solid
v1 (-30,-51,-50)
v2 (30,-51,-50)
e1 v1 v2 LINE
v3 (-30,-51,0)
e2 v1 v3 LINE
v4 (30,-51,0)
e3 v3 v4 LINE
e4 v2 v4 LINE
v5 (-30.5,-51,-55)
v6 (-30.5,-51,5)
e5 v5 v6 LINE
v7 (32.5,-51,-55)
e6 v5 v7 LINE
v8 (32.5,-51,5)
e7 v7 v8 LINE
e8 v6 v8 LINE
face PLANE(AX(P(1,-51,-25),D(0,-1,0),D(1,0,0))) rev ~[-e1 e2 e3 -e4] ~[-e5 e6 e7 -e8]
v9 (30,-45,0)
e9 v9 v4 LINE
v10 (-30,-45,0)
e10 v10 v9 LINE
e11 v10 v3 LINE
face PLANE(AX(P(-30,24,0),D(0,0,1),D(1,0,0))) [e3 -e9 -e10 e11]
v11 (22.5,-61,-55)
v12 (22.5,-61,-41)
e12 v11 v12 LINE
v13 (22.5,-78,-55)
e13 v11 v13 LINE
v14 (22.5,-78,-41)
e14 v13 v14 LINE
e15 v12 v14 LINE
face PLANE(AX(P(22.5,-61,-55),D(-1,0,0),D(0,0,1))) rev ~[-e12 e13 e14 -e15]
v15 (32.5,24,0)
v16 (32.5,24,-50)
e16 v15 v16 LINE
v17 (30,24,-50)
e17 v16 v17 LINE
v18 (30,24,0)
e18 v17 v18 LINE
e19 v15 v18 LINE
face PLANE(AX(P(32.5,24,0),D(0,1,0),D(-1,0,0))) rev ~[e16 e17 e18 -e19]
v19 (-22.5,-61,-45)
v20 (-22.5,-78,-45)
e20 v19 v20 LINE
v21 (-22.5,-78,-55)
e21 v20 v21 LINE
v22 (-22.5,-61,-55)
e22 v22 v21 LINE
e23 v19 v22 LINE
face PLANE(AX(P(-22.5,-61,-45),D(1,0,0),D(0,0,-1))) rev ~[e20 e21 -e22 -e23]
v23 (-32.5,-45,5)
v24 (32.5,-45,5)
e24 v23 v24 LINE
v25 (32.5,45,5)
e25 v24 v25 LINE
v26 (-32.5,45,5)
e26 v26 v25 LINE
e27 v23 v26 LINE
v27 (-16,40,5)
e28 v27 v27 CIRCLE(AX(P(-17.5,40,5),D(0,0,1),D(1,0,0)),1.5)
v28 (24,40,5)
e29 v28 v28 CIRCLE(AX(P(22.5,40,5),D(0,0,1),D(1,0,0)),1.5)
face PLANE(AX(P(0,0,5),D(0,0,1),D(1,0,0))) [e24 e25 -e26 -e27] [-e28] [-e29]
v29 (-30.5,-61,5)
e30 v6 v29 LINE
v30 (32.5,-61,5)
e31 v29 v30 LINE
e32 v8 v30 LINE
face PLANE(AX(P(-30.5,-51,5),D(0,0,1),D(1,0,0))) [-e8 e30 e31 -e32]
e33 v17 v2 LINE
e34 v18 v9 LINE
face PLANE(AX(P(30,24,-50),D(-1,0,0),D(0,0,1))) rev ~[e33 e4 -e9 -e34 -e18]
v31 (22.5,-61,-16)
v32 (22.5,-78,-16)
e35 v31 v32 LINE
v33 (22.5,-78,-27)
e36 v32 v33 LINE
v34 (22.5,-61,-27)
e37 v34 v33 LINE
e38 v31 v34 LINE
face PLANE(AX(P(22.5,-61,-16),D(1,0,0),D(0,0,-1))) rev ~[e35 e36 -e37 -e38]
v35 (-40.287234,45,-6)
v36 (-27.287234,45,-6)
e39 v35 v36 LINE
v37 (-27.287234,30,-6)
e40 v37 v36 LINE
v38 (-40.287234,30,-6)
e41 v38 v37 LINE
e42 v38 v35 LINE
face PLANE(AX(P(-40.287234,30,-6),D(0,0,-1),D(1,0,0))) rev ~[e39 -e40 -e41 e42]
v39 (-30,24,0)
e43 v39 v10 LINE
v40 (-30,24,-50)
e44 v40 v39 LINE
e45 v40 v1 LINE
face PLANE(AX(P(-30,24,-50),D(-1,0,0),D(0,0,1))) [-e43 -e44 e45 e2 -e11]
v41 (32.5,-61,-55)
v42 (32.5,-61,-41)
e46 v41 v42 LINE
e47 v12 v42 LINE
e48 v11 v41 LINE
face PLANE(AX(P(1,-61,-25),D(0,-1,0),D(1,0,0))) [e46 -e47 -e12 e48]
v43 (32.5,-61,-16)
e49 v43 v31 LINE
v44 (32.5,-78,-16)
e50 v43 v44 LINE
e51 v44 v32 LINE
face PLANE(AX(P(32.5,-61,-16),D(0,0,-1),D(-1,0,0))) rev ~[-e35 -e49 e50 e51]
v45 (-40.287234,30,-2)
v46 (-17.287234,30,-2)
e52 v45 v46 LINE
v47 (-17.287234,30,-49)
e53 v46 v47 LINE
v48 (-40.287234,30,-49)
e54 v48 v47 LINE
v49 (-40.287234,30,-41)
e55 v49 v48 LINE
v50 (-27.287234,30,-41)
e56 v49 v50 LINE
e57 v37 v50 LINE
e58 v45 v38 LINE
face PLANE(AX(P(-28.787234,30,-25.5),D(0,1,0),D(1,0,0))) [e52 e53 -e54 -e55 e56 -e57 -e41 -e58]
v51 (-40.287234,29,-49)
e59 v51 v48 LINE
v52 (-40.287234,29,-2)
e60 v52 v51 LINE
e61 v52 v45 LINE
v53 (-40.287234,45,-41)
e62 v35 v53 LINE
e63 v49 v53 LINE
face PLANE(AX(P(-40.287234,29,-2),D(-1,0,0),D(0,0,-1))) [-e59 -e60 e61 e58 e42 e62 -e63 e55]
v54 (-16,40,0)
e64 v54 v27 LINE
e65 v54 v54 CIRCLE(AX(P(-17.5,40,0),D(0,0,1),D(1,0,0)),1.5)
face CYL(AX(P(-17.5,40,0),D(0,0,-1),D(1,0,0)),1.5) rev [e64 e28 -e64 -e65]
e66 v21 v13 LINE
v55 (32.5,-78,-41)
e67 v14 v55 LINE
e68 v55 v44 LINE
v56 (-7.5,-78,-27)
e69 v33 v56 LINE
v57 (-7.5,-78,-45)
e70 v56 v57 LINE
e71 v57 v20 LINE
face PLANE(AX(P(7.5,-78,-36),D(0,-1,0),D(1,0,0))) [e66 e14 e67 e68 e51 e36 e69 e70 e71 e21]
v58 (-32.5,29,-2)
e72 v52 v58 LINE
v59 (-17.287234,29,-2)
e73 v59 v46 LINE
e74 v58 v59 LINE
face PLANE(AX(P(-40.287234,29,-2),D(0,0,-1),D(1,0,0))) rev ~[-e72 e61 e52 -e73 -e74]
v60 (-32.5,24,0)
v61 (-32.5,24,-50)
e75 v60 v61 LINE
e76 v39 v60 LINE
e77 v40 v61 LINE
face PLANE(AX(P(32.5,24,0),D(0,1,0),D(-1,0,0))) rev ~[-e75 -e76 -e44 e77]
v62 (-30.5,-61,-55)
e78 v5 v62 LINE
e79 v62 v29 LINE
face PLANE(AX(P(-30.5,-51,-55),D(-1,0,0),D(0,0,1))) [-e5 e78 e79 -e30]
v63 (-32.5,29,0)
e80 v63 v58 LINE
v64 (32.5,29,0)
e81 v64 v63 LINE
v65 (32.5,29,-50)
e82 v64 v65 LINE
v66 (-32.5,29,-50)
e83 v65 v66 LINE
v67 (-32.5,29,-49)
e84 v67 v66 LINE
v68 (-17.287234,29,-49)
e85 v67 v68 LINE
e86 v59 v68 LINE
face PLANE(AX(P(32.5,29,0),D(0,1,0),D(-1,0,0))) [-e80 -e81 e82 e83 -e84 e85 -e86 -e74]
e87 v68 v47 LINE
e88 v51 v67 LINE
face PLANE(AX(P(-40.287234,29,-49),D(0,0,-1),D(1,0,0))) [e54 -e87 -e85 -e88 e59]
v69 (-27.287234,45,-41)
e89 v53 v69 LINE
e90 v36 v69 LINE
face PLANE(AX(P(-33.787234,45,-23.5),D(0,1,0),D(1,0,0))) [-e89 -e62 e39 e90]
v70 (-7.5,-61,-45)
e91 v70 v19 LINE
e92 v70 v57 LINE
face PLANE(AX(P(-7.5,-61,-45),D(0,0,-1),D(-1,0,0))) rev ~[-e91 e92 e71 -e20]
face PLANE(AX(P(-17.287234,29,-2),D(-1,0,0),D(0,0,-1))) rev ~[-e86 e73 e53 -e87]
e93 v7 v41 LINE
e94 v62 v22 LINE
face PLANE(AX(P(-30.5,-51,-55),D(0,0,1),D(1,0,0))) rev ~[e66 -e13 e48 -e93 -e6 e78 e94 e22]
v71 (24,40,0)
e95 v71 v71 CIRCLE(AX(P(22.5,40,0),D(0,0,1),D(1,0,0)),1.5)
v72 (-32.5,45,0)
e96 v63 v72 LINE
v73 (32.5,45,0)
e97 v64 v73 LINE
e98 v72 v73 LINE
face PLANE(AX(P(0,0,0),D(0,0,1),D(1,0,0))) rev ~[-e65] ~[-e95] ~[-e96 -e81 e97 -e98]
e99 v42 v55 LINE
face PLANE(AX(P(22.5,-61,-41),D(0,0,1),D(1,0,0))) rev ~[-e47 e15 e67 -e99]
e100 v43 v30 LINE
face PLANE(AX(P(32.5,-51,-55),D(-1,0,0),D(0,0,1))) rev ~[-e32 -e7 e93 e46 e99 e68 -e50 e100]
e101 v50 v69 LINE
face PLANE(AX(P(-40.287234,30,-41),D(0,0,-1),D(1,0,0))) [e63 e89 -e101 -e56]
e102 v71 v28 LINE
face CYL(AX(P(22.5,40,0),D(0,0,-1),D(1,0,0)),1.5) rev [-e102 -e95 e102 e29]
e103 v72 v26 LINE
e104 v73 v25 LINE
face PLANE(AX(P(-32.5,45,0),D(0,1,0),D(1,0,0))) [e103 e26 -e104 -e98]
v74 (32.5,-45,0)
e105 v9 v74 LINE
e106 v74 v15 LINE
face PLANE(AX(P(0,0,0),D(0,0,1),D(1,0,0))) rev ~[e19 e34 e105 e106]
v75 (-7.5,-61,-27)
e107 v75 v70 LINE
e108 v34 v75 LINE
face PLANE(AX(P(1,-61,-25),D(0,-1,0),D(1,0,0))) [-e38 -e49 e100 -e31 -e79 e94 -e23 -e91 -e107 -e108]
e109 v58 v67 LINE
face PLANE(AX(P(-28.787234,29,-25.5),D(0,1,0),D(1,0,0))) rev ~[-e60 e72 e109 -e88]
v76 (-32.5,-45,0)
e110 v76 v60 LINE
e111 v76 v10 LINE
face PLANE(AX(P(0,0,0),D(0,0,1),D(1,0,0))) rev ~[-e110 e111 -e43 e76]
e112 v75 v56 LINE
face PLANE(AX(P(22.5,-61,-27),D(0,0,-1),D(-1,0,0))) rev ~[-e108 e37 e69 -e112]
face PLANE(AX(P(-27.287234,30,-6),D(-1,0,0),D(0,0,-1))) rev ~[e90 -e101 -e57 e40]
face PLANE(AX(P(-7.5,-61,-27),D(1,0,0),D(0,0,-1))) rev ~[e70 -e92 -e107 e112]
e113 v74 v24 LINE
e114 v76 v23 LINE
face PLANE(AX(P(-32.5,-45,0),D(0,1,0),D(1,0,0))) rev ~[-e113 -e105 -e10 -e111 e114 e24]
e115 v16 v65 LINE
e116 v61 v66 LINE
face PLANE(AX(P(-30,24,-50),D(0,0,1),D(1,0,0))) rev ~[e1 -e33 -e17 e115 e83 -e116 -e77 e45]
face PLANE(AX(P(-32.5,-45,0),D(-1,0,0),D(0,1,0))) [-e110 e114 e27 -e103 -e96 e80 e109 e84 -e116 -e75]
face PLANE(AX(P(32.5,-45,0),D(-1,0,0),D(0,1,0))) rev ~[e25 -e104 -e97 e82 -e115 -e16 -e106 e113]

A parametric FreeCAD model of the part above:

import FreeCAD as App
import Part
import Sketcher
from FreeCAD import Vector
Q = App.Units.Quantity

doc = App.newDocument("Part")
body = doc.addObject("PartDesign::Body", "Body")

# Sketch on XY plane
sketch1 = body.newObject("Sketcher::SketchObject", "Sketch")
sketch1.AttachmentSupport = (doc.getObject("XY_Plane"), [""])
sketch1.MapMode = "FlatFace"
sketch1.addGeometry(Part.LineSegment(Vector(-32.5, 45, 0), Vector(-32.5, -45, 0)), False)
sketch1.addGeometry(Part.LineSegment(Vector(-32.5, -45, 0), Vector(32.5, -45, 0)), False)
sketch1.addGeometry(Part.LineSegment(Vector(32.5, -45, 0), Vector(32.5, 45, 0)), False)
sketch1.addGeometry(Part.LineSegment(Vector(32.5, 45, 0), Vector(-32.5, 45, 0)), False)
sketch1.addGeometry(Part.Circle(Vector(-17.5, 40, 0), Vector(0, 0, 1), 1.5), False)
sketch1.addGeometry(Part.Circle(Vector(22.5, 40, 0), Vector(0, 0, 1), 1.5), False)
sketch1.addConstraint(Sketcher.Constraint("Coincident", 0, 2, 1, 1))
sketch1.addConstraint(Sketcher.Constraint("Coincident", 1, 2, 2, 1))
sketch1.addConstraint(Sketcher.Constraint("Coincident", 2, 2, 3, 1))
sketch1.addConstraint(Sketcher.Constraint("Coincident", 3, 2, 0, 1))
sketch1.addConstraint(Sketcher.Constraint("Vertical", 0))
sketch1.addConstraint(Sketcher.Constraint("Horizontal", 1))
sketch1.addConstraint(Sketcher.Constraint("Vertical", 2))
sketch1.addConstraint(Sketcher.Constraint("Horizontal", 3))
sketch1.addConstraint(Sketcher.Constraint("Equal", 4, 5))
sketch1.addConstraint(Sketcher.Constraint("Symmetric", 0, 2, 2, 2, -1, 1))
sketch1.addConstraint(Sketcher.Constraint("Horizontal", 4, 3, 5, 3))
sketch1.addConstraint(Sketcher.Constraint("Diameter", 4, Q("3 mm")))
sketch1.addConstraint(Sketcher.Constraint("DistanceX", 1, 1, 1, 2, Q("65 mm")))
sketch1.addConstraint(Sketcher.Constraint("DistanceY", 0, 2, 0, 1, Q("90 mm")))
sketch1.addConstraint(Sketcher.Constraint("DistanceY", -1, 1, 4, 3, Q("40 mm")))
sketch1.addConstraint(Sketcher.Constraint("DistanceX", 4, 3, 5, 3, Q("40 mm")))
sketch1.addConstraint(Sketcher.Constraint("DistanceX", 0, 2, 4, 3, Q("15 mm")))
pad1 = body.newObject("PartDesign::Pad", "Pad")
pad1.Profile = sketch1
pad1.Length = 5

# Sketch on XY plane
sketch2 = body.newObject("Sketcher::SketchObject", "Sketch001")
sketch2.AttachmentSupport = (doc.getObject("XY_Plane"), [""])
sketch2.MapMode = "FlatFace"
sketch2.addGeometry(Part.LineSegment(Vector(32, 29, 0), Vector(32, 24, 0)), False)
sketch2.addGeometry(Part.LineSegment(Vector(32, 24, 0), Vector(-32, 24, 0)), False)
sketch2.addGeometry(Part.LineSegment(Vector(-32, 24, 0), Vector(-32, 29, 0)), False)
sketch2.addGeometry(Part.LineSegment(Vector(-32, 29, 0), Vector(32, 29, 0)), False)
sketch2.addConstraint(Sketcher.Constraint("Coincident", 0, 2, 1, 1))
sketch2.addConstraint(Sketcher.Constraint("Coincident", 1, 2, 2, 1))
sketch2.addConstraint(Sketcher.Constraint("Coincident", 2, 2, 3, 1))
sketch2.addConstraint(Sketcher.Constraint("Coincident", 3, 2, 0, 1))
sketch2.addConstraint(Sketcher.Constraint("Vertical", 0))
sketch2.addConstraint(Sketcher.Constraint("Horizontal", 1))
sketch2.addConstraint(Sketcher.Constraint("Vertical", 2))
sketch2.addConstraint(Sketcher.Constraint("Horizontal", 3))
sketch2.addConstraint(Sketcher.Constraint("DistanceX", 1, 2, 1, 1, Q("65 mm")))
sketch2.addConstraint(Sketcher.Constraint("DistanceY", 0, 2, 0, 1, Q("5 mm")))
sketch2.addConstraint(Sketcher.Constraint("DistanceY", -1, 1, 0, 2, Q("24 mm")))
sketch2.addConstraint(Sketcher.Constraint("DistanceX", -1, 1, 0, 2, Q("32.5 mm")))
pad2 = body.newObject("PartDesign::Pad", "Pad001")
pad2.Profile = sketch2
pad2.Length = 50
pad2.Reversed = True

# Sketch on XZ plane
sketch3 = body.newObject("Sketcher::SketchObject", "Sketch002")
sketch3.AttachmentSupport = (doc.getObject("XZ_Plane"), [""])
sketch3.MapMode = "FlatFace"
sketch3.AttachmentOffset = App.Placement(Vector(0, 0, -29), App.Rotation())
sketch3.addGeometry(Part.LineSegment(Vector(-40, -49, 0), Vector(-40, -2, 0)), False)
sketch3.addGeometry(Part.LineSegment(Vector(-40, -2, 0), Vector(-17, -2, 0)), False)
sketch3.addGeometry(Part.LineSegment(Vector(-17, -2, 0), Vector(-17, -49, 0)), False)
sketch3.addGeometry(Part.LineSegment(Vector(-17, -49, 0), Vector(-40, -49, 0)), False)
sketch3.addConstraint(Sketcher.Constraint("Coincident", 0, 2, 1, 1))
sketch3.addConstraint(Sketcher.Constraint("Coincident", 1, 2, 2, 1))
sketch3.addConstraint(Sketcher.Constraint("Coincident", 2, 2, 3, 1))
sketch3.addConstraint(Sketcher.Constraint("Coincident", 3, 2, 0, 1))
sketch3.addConstraint(Sketcher.Constraint("Vertical", 0))
sketch3.addConstraint(Sketcher.Constraint("Horizontal", 1))
sketch3.addConstraint(Sketcher.Constraint("Vertical", 2))
sketch3.addConstraint(Sketcher.Constraint("Horizontal", 3))
sketch3.addConstraint(Sketcher.Constraint("DistanceX", 1, 1, 1, 2, Q("23 mm")))
sketch3.addConstraint(Sketcher.Constraint("DistanceY", 0, 1, 0, 2, Q("47 mm")))
sketch3.addConstraint(Sketcher.Constraint("DistanceY", 0, 2, -1, 1, Q("2 mm")))
sketch3.addConstraint(Sketcher.Constraint("DistanceX", 0, 2, -1, 1, Q("40.287234 mm")))
pad3 = body.newObject("PartDesign::Pad", "Pad002")
pad3.Profile = sketch3
pad3.Length = 1
pad3.Reversed = True

# Sketch on XZ plane
sketch4 = body.newObject("Sketcher::SketchObject", "Sketch003")
sketch4.AttachmentSupport = (doc.getObject("XZ_Plane"), [""])
sketch4.MapMode = "FlatFace"
sketch4.AttachmentOffset = App.Placement(Vector(0, 0, -30), App.Rotation())
sketch4.addGeometry(Part.LineSegment(Vector(-40, -41, 0), Vector(-40, -6, 0)), False)
sketch4.addGeometry(Part.LineSegment(Vector(-40, -6, 0), Vector(-27, -6, 0)), False)
sketch4.addGeometry(Part.LineSegment(Vector(-27, -6, 0), Vector(-27, -41, 0)), False)
sketch4.addGeometry(Part.LineSegment(Vector(-27, -41, 0), Vector(-40, -41, 0)), False)
sketch4.addConstraint(Sketcher.Constraint("Coincident", 0, 2, 1, 1))
sketch4.addConstraint(Sketcher.Constraint("Coincident", 1, 2, 2, 1))
sketch4.addConstraint(Sketcher.Constraint("Coincident", 2, 2, 3, 1))
sketch4.addConstraint(Sketcher.Constraint("Coincident", 3, 2, 0, 1))
sketch4.addConstraint(Sketcher.Constraint("Vertical", 0))
sketch4.addConstraint(Sketcher.Constraint("Horizontal", 1))
sketch4.addConstraint(Sketcher.Constraint("Vertical", 2))
sketch4.addConstraint(Sketcher.Constraint("Horizontal", 3))
sketch4.addConstraint(Sketcher.Constraint("DistanceX", 1, 1, 1, 2, Q("13 mm")))
sketch4.addConstraint(Sketcher.Constraint("DistanceY", 0, 1, 0, 2, Q("35 mm")))
sketch4.addConstraint(Sketcher.Constraint("DistanceY", 0, 2, -1, 1, Q("6 mm")))
sketch4.addConstraint(Sketcher.Constraint("DistanceX", 0, 2, -1, 1, Q("40.287234 mm")))
pad4 = body.newObject("PartDesign::Pad", "Pad003")
pad4.Profile = sketch4
pad4.Length = 15
pad4.Reversed = True

# Sketch on XZ plane
sketch5 = body.newObject("Sketcher::SketchObject", "Sketch004")
sketch5.AttachmentSupport = (doc.getObject("XZ_Plane"), [""])
sketch5.MapMode = "FlatFace"
sketch5.AttachmentOffset = App.Placement(Vector(0, 0, -24), App.Rotation())
sketch5.addGeometry(Part.LineSegment(Vector(-30, 0, 0), Vector(-30, -50, 0)), False)
sketch5.addGeometry(Part.LineSegment(Vector(-30, -50, 0), Vector(30, -50, 0)), False)
sketch5.addGeometry(Part.LineSegment(Vector(30, -50, 0), Vector(30, 0, 0)), False)
sketch5.addGeometry(Part.LineSegment(Vector(30, 0, 0), Vector(-30, 0, 0)), False)
sketch5.addConstraint(Sketcher.Constraint("Coincident", 0, 2, 1, 1))
sketch5.addConstraint(Sketcher.Constraint("Coincident", 1, 2, 2, 1))
sketch5.addConstraint(Sketcher.Constraint("Coincident", 2, 2, 3, 1))
sketch5.addConstraint(Sketcher.Constraint("Coincident", 3, 2, 0, 1))
sketch5.addConstraint(Sketcher.Constraint("Vertical", 0))
sketch5.addConstraint(Sketcher.Constraint("Horizontal", 1))
sketch5.addConstraint(Sketcher.Constraint("Vertical", 2))
sketch5.addConstraint(Sketcher.Constraint("Horizontal", 3))
sketch5.addConstraint(Sketcher.Constraint("Symmetric", 2, 2, 3, 2, -1, 1))
sketch5.addConstraint(Sketcher.Constraint("DistanceX", 1, 1, 1, 2, Q("60 mm")))
sketch5.addConstraint(Sketcher.Constraint("DistanceY", 0, 2, 0, 1, Q("50 mm")))
pad5 = body.newObject("PartDesign::Pad", "Pad004")
pad5.Profile = sketch5
pad5.Length = 75

# Sketch on XZ plane
sketch6 = body.newObject("Sketcher::SketchObject", "Sketch005")
sketch6.AttachmentSupport = (doc.getObject("XZ_Plane"), [""])
sketch6.MapMode = "FlatFace"
sketch6.AttachmentOffset = App.Placement(Vector(0, 0, 51), App.Rotation())
sketch6.addGeometry(Part.LineSegment(Vector(-30, 5, 0), Vector(-30, -55, 0)), False)
sketch6.addGeometry(Part.LineSegment(Vector(-30, -55, 0), Vector(32, -55, 0)), False)
sketch6.addGeometry(Part.LineSegment(Vector(32, -55, 0), Vector(32, 5, 0)), False)
sketch6.addGeometry(Part.LineSegment(Vector(32, 5, 0), Vector(-30, 5, 0)), False)
sketch6.addConstraint(Sketcher.Constraint("Coincident", 0, 2, 1, 1))
sketch6.addConstraint(Sketcher.Constraint("Coincident", 1, 2, 2, 1))
sketch6.addConstraint(Sketcher.Constraint("Coincident", 2, 2, 3, 1))
sketch6.addConstraint(Sketcher.Constraint("Coincident", 3, 2, 0, 1))
sketch6.addConstraint(Sketcher.Constraint("Vertical", 0))
sketch6.addConstraint(Sketcher.Constraint("Horizontal", 1))
sketch6.addConstraint(Sketcher.Constraint("Vertical", 2))
sketch6.addConstraint(Sketcher.Constraint("Horizontal", 3))
sketch6.addConstraint(Sketcher.Constraint("DistanceX", 1, 1, 1, 2, Q("63 mm")))
sketch6.addConstraint(Sketcher.Constraint("DistanceY", 0, 2, 0, 1, Q("60 mm")))
sketch6.addConstraint(Sketcher.Constraint("DistanceY", 0, 2, -1, 1, Q("55 mm")))
sketch6.addConstraint(Sketcher.Constraint("DistanceX", 0, 2, -1, 1, Q("30.5 mm")))
pad6 = body.newObject("PartDesign::Pad", "Pad005")
pad6.Profile = sketch6
pad6.Length = 10

# Sketch on XZ plane
sketch7 = body.newObject("Sketcher::SketchObject", "Sketch006")
sketch7.AttachmentSupport = (doc.getObject("XZ_Plane"), [""])
sketch7.MapMode = "FlatFace"
sketch7.AttachmentOffset = App.Placement(Vector(0, 0, 61), App.Rotation())
sketch7.addGeometry(Part.LineSegment(Vector(22, -27, 0), Vector(-8, -27, 0)), False)
sketch7.addGeometry(Part.LineSegment(Vector(-8, -27, 0), Vector(-8, -45, 0)), False)
sketch7.addGeometry(Part.LineSegment(Vector(-8, -45, 0), Vector(-22, -45, 0)), False)
sketch7.addGeometry(Part.LineSegment(Vector(-22, -45, 0), Vector(-22, -55, 0)), False)
sketch7.addGeometry(Part.LineSegment(Vector(-22, -55, 0), Vector(22, -55, 0)), False)
sketch7.addGeometry(Part.LineSegment(Vector(22, -55, 0), Vector(22, -41, 0)), False)
sketch7.addGeometry(Part.LineSegment(Vector(22, -41, 0), Vector(32, -41, 0)), False)
sketch7.addGeometry(Part.LineSegment(Vector(32, -41, 0), Vector(32, -16, 0)), False)
sketch7.addGeometry(Part.LineSegment(Vector(32, -16, 0), Vector(22, -16, 0)), False)
sketch7.addGeometry(Part.LineSegment(Vector(22, -16, 0), Vector(22, -27, 0)), False)
sketch7.addConstraint(Sketcher.Constraint("Coincident", 0, 2, 1, 1))
sketch7.addConstraint(Sketcher.Constraint("Coincident", 1, 2, 2, 1))
sketch7.addConstraint(Sketcher.Constraint("Coincident", 2, 2, 3, 1))
sketch7.addConstraint(Sketcher.Constraint("Coincident", 3, 2, 4, 1))
sketch7.addConstraint(Sketcher.Constraint("Coincident", 4, 2, 5, 1))
sketch7.addConstraint(Sketcher.Constraint("Coincident", 5, 2, 6, 1))
sketch7.addConstraint(Sketcher.Constraint("Coincident", 6, 2, 7, 1))
sketch7.addConstraint(Sketcher.Constraint("Coincident", 7, 2, 8, 1))
sketch7.addConstraint(Sketcher.Constraint("Coincident", 8, 2, 9, 1))
sketch7.addConstraint(Sketcher.Constraint("Coincident", 9, 2, 0, 1))
sketch7.addConstraint(Sketcher.Constraint("Horizontal", 0))
sketch7.addConstraint(Sketcher.Constraint("Vertical", 1))
sketch7.addConstraint(Sketcher.Constraint("Horizontal", 2))
sketch7.addConstraint(Sketcher.Constraint("Vertical", 3))
sketch7.addConstraint(Sketcher.Constraint("Horizontal", 4))
sketch7.addConstraint(Sketcher.Constraint("Vertical", 5))
sketch7.addConstraint(Sketcher.Constraint("Horizontal", 6))
sketch7.addConstraint(Sketcher.Constraint("Vertical", 7))
sketch7.addConstraint(Sketcher.Constraint("Horizontal", 8))
sketch7.addConstraint(Sketcher.Constraint("Vertical", 9))
sketch7.addConstraint(Sketcher.Constraint("Vertical", 5, 2, 8, 2))
sketch7.addConstraint(Sketcher.Constraint("Equal", 8, 3))
sketch7.addConstraint(Sketcher.Constraint("DistanceX", 0, 2, 0, 1, Q("30 mm")))
sketch7.addConstraint(Sketcher.Constraint("DistanceX", 2, 2, 2, 1, Q("15 mm")))
sketch7.addConstraint(Sketcher.Constraint("DistanceX", 6, 1, 6, 2, Q("10 mm")))
sketch7.addConstraint(Sketcher.Constraint("DistanceY", 1, 2, 1, 1, Q("18 mm")))
sketch7.addConstraint(Sketcher.Constraint("DistanceY", 5, 1, 5, 2, Q("14 mm")))
sketch7.addConstraint(Sketcher.Constraint("DistanceY", 7, 1, 7, 2, Q("25 mm")))
sketch7.addConstraint(Sketcher.Constraint("DistanceY", 0, 2, -1, 1, Q("27 mm")))
sketch7.addConstraint(Sketcher.Constraint("DistanceX", 0, 2, -1, 1, Q("7.5 mm")))
pad7 = body.newObject("PartDesign::Pad", "Pad006")
pad7.Profile = sketch7
pad7.Length = 17

doc.recompute()
